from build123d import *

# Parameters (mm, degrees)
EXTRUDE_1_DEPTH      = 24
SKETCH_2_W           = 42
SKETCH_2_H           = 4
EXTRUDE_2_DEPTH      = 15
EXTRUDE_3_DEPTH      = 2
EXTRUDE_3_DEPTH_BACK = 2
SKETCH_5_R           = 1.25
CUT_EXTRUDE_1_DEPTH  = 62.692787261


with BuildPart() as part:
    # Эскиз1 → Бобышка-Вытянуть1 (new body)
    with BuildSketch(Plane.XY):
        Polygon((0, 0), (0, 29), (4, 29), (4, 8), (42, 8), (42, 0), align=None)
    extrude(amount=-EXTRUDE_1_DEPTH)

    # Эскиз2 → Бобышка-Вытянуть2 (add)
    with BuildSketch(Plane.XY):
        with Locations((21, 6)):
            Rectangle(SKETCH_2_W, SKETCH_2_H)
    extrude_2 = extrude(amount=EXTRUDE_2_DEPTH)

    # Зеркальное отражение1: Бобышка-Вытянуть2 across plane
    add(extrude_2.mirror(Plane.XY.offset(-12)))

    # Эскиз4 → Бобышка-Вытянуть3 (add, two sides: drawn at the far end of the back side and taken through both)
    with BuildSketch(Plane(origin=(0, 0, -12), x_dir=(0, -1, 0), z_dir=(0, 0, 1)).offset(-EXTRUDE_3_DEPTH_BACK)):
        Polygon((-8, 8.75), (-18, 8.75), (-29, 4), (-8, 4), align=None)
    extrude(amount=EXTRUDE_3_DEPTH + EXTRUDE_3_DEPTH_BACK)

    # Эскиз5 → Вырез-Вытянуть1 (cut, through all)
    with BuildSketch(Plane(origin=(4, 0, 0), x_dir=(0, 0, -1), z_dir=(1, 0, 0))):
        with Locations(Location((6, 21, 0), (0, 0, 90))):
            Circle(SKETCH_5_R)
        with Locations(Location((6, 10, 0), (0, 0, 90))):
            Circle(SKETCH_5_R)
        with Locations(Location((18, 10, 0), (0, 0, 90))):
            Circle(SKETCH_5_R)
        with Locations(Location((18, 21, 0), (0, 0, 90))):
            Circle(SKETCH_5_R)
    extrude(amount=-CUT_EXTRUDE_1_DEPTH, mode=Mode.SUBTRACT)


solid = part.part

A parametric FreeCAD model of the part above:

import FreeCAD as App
import Part
import Sketcher
Q = App.Units.Quantity

doc = App.newDocument("Part")
params = doc.addObject("Spreadsheet::Sheet", "Params")
for row, (alias, value) in enumerate([
    ("sketch1_width", "42 mm"),
    ("sketch1_width2", "38 mm"),
    ("sketch1_height", "29 mm"),
    ("sketch1_height2", "8 mm"),
    ("pad1_length", "24 mm"),
    ("sketch2_width", "42 mm"),
    ("sketch2_height", "4 mm"),
    ("pad2_length", "15 mm"),
    ("sketch3_height", "10 mm"),
    ("sketch3_height2", "21 mm"),
    ("sketch3_width", "4.75 mm"),
    ("pad3_length", "2 mm"),
    ("pad3_length2", "2 mm"),
    ("sketch4_diameter", "2.5 mm"),
], start=1):
    params.set(f"A{row}", alias)
    params.set(f"B{row}", "=" + value)
    params.setAlias(f"B{row}", alias)

body = doc.addObject("PartDesign::Body", "Body")

# Sketch on XY plane
sketch1 = body.newObject("Sketcher::SketchObject", "Sketch")
sketch1.AttachmentSupport = (doc.getObject("XY_Plane"), [""])
sketch1.MapMode = "FlatFace"
sketch1.addGeometry([
    Part.LineSegment(App.Vector(0, 29, 0), App.Vector(0, 0, 0)),  # 0
    Part.LineSegment(App.Vector(0, 0, 0), App.Vector(42, 0, 0)),  # 1
    Part.LineSegment(App.Vector(42, 0, 0), App.Vector(42, 8, 0)),  # 2
    Part.LineSegment(App.Vector(42, 8, 0), App.Vector(4, 8, 0)),  # 3
    Part.LineSegment(App.Vector(4, 8, 0), App.Vector(4, 29, 0)),  # 4
    Part.LineSegment(App.Vector(4, 29, 0), App.Vector(0, 29, 0)),  # 5
], False)
sketch1.addConstraint([
    Sketcher.Constraint("Coincident", 0, 2, 1, 1),
    Sketcher.Constraint("Coincident", 1, 2, 2, 1),
    Sketcher.Constraint("Coincident", 2, 2, 3, 1),
    Sketcher.Constraint("Coincident", 3, 2, 4, 1),
    Sketcher.Constraint("Coincident", 4, 2, 5, 1),
    Sketcher.Constraint("Coincident", 5, 2, 0, 1),
    Sketcher.Constraint("Vertical", 0),
    Sketcher.Constraint("Horizontal", 1),
    Sketcher.Constraint("Vertical", 2),
    Sketcher.Constraint("Horizontal", 3),
    Sketcher.Constraint("Vertical", 4),
    Sketcher.Constraint("Horizontal", 5),
    Sketcher.Constraint("Coincident", 0, 2, -1, 1),
    Sketcher.Constraint("DistanceX", 1, 1, 1, 2, Q("42 mm")),
    Sketcher.Constraint("DistanceX", 3, 2, 3, 1, Q("38 mm")),
    Sketcher.Constraint("DistanceY", 0, 2, 0, 1, Q("29 mm")),
    Sketcher.Constraint("DistanceY", 2, 1, 2, 2, Q("8 mm")),
])
sketch1.setExpression("Constraints[13]", "Params.sketch1_width")
sketch1.setExpression("Constraints[14]", "Params.sketch1_width2")
sketch1.setExpression("Constraints[15]", "Params.sketch1_height")
sketch1.setExpression("Constraints[16]", "Params.sketch1_height2")
pad1 = body.newObject("PartDesign::Pad", "Pad")
pad1.Profile = sketch1
pad1.setExpression("Length", "Params.pad1_length")
pad1.Reversed = True

# Sketch on XY plane
sketch2 = body.newObject("Sketcher::SketchObject", "Sketch001")
sketch2.AttachmentSupport = (doc.getObject("XY_Plane"), [""])
sketch2.MapMode = "FlatFace"
sketch2.addGeometry([
    Part.LineSegment(App.Vector(0, 8, 0), App.Vector(0, 4, 0)),
    Part.LineSegment(App.Vector(0, 4, 0), App.Vector(42, 4, 0)),
    Part.LineSegment(App.Vector(42, 4, 0), App.Vector(42, 8, 0)),
    Part.LineSegment(App.Vector(42, 8, 0), App.Vector(0, 8, 0)),
], False)
sketch2.addConstraint([
    Sketcher.Constraint("Coincident", 0, 2, 1, 1),
    Sketcher.Constraint("Coincident", 1, 2, 2, 1),
    Sketcher.Constraint("Coincident", 2, 2, 3, 1),
    Sketcher.Constraint("Coincident", 3, 2, 0, 1),
    Sketcher.Constraint("Vertical", 0),
    Sketcher.Constraint("Horizontal", 1),
    Sketcher.Constraint("Vertical", 2),
    Sketcher.Constraint("Horizontal", 3),
    Sketcher.Constraint("PointOnObject", 0, 2, -2),
    Sketcher.Constraint("DistanceX", 1, 1, 1, 2, Q("42 mm")),
    Sketcher.Constraint("DistanceY", 0, 2, 0, 1, Q("4 mm")),
    Sketcher.Constraint("DistanceY", -1, 1, 0, 2, Q("4 mm")),
])
sketch2.setExpression("Constraints[9]", "Params.sketch2_width")
sketch2.setExpression("Constraints[10]", "Params.sketch2_height")
pad2 = body.newObject("PartDesign::Pad", "Pad001")
pad2.Profile = sketch2
pad2.setExpression("Length", "Params.pad2_length")
doc.recompute()

datumplane = body.newObject("PartDesign::Plane", "DatumPlane")
datumplane.AttachmentSupport = (doc.getObject("XY_Plane"), [""])
datumplane.MapMode = "FlatFace"
datumplane.AttachmentOffset = App.Placement(App.Vector(0, 0, -12), App.Rotation())
mirrored = body.newObject("PartDesign::Mirrored", "Mirrored")
mirrored.Originals = [pad2]
mirrored.MirrorPlane = (datumplane, [""])
body.Tip = mirrored

# Sketch on XY plane
sketch3 = body.newObject("Sketcher::SketchObject", "Sketch002")
sketch3.AttachmentSupport = (doc.getObject("XY_Plane"), [""])
sketch3.MapMode = "FlatFace"
sketch3.AttachmentOffset = App.Placement(App.Vector(0, 0, -12), App.Rotation())
sketch3.addGeometry([
    Part.LineSegment(App.Vector(8.75, 8, 0), App.Vector(8.75, 18, 0)),
    Part.LineSegment(App.Vector(8.75, 18, 0), App.Vector(4, 29, 0)),
    Part.LineSegment(App.Vector(4, 29, 0), App.Vector(4, 8, 0)),
    Part.LineSegment(App.Vector(4, 8, 0), App.Vector(8.75, 8, 0)),
], False)
sketch3.addConstraint([
    Sketcher.Constraint("Coincident", 0, 2, 1, 1),
    Sketcher.Constraint("Coincident", 1, 2, 2, 1),
    Sketcher.Constraint("Coincident", 2, 2, 3, 1),
    Sketcher.Constraint("Coincident", 3, 2, 0, 1),
    Sketcher.Constraint("Vertical", 0),
    Sketcher.Constraint("Vertical", 2),
    Sketcher.Constraint("Horizontal", 3),
    Sketcher.Constraint("DistanceY", 0, 1, 0, 2, Q("10 mm")),
    Sketcher.Constraint("DistanceY", 2, 2, 2, 1, Q("21 mm")),
    Sketcher.Constraint("DistanceY", -1, 1, 0, 2, Q("18 mm")),
    Sketcher.Constraint("DistanceX", -1, 1, 1, 2, Q("4 mm")),
    Sketcher.Constraint("DistanceX", 3, 1, 3, 2, Q("4.75 mm")),
])
sketch3.setExpression("Constraints[7]", "Params.sketch3_height")
sketch3.setExpression("Constraints[8]", "Params.sketch3_height2")
sketch3.setExpression("Constraints[11]", "Params.sketch3_width")
pad3 = body.newObject("PartDesign::Pad", "Pad002")
pad3.Profile = sketch3
pad3.Type = "TwoLengths"
pad3.setExpression("Length", "Params.pad3_length")
pad3.setExpression("Length2", "Params.pad3_length2")

# Sketch on YZ plane
sketch4 = body.newObject("Sketcher::SketchObject", "Sketch003")
sketch4.AttachmentSupport = (doc.getObject("YZ_Plane"), [""])
sketch4.MapMode = "FlatFace"
sketch4.AttachmentOffset = App.Placement(App.Vector(0, 0, 4), App.Rotation())
sketch4.addGeometry([
    Part.Circle(App.Vector(21, -6, 0), App.Vector(0, 0, 1), 1.25),
    Part.Circle(App.Vector(10, -6, 0), App.Vector(0, 0, 1), 1.25),
    Part.Circle(App.Vector(10, -18, 0), App.Vector(0, 0, 1), 1.25),
    Part.Circle(App.Vector(21, -18, 0), App.Vector(0, 0, 1), 1.25),
], False)
sketch4.addConstraint([
    Sketcher.Constraint("Equal", 0, 1),
    Sketcher.Constraint("Equal", 1, 2),
    Sketcher.Constraint("Equal", 2, 3),
    Sketcher.Constraint("Horizontal", 0, 3, 1, 3),
    Sketcher.Constraint("Horizontal", 2, 3, 3, 3),
    Sketcher.Constraint("Vertical", 1, 3, 2, 3),
    Sketcher.Constraint("Vertical", 0, 3, 3, 3),
    Sketcher.Constraint("Diameter", 0, Q("2.5 mm")),
    Sketcher.Constraint("DistanceX", -1, 1, 0, 3, Q("21 mm")),
    Sketcher.Constraint("DistanceY", 0, 3, -1, 1, Q("6 mm")),
    Sketcher.Constraint("DistanceX", -1, 1, 1, 3, Q("10 mm")),
    Sketcher.Constraint("DistanceY", 2, 3, -1, 1, Q("18 mm")),
])
sketch4.setExpression("Constraints[7]", "Params.sketch4_diameter")
pocket1 = body.newObject("PartDesign::Pocket", "Pocket")
pocket1.Profile = sketch4
pocket1.Type = "ThroughAll"

doc.recompute()
